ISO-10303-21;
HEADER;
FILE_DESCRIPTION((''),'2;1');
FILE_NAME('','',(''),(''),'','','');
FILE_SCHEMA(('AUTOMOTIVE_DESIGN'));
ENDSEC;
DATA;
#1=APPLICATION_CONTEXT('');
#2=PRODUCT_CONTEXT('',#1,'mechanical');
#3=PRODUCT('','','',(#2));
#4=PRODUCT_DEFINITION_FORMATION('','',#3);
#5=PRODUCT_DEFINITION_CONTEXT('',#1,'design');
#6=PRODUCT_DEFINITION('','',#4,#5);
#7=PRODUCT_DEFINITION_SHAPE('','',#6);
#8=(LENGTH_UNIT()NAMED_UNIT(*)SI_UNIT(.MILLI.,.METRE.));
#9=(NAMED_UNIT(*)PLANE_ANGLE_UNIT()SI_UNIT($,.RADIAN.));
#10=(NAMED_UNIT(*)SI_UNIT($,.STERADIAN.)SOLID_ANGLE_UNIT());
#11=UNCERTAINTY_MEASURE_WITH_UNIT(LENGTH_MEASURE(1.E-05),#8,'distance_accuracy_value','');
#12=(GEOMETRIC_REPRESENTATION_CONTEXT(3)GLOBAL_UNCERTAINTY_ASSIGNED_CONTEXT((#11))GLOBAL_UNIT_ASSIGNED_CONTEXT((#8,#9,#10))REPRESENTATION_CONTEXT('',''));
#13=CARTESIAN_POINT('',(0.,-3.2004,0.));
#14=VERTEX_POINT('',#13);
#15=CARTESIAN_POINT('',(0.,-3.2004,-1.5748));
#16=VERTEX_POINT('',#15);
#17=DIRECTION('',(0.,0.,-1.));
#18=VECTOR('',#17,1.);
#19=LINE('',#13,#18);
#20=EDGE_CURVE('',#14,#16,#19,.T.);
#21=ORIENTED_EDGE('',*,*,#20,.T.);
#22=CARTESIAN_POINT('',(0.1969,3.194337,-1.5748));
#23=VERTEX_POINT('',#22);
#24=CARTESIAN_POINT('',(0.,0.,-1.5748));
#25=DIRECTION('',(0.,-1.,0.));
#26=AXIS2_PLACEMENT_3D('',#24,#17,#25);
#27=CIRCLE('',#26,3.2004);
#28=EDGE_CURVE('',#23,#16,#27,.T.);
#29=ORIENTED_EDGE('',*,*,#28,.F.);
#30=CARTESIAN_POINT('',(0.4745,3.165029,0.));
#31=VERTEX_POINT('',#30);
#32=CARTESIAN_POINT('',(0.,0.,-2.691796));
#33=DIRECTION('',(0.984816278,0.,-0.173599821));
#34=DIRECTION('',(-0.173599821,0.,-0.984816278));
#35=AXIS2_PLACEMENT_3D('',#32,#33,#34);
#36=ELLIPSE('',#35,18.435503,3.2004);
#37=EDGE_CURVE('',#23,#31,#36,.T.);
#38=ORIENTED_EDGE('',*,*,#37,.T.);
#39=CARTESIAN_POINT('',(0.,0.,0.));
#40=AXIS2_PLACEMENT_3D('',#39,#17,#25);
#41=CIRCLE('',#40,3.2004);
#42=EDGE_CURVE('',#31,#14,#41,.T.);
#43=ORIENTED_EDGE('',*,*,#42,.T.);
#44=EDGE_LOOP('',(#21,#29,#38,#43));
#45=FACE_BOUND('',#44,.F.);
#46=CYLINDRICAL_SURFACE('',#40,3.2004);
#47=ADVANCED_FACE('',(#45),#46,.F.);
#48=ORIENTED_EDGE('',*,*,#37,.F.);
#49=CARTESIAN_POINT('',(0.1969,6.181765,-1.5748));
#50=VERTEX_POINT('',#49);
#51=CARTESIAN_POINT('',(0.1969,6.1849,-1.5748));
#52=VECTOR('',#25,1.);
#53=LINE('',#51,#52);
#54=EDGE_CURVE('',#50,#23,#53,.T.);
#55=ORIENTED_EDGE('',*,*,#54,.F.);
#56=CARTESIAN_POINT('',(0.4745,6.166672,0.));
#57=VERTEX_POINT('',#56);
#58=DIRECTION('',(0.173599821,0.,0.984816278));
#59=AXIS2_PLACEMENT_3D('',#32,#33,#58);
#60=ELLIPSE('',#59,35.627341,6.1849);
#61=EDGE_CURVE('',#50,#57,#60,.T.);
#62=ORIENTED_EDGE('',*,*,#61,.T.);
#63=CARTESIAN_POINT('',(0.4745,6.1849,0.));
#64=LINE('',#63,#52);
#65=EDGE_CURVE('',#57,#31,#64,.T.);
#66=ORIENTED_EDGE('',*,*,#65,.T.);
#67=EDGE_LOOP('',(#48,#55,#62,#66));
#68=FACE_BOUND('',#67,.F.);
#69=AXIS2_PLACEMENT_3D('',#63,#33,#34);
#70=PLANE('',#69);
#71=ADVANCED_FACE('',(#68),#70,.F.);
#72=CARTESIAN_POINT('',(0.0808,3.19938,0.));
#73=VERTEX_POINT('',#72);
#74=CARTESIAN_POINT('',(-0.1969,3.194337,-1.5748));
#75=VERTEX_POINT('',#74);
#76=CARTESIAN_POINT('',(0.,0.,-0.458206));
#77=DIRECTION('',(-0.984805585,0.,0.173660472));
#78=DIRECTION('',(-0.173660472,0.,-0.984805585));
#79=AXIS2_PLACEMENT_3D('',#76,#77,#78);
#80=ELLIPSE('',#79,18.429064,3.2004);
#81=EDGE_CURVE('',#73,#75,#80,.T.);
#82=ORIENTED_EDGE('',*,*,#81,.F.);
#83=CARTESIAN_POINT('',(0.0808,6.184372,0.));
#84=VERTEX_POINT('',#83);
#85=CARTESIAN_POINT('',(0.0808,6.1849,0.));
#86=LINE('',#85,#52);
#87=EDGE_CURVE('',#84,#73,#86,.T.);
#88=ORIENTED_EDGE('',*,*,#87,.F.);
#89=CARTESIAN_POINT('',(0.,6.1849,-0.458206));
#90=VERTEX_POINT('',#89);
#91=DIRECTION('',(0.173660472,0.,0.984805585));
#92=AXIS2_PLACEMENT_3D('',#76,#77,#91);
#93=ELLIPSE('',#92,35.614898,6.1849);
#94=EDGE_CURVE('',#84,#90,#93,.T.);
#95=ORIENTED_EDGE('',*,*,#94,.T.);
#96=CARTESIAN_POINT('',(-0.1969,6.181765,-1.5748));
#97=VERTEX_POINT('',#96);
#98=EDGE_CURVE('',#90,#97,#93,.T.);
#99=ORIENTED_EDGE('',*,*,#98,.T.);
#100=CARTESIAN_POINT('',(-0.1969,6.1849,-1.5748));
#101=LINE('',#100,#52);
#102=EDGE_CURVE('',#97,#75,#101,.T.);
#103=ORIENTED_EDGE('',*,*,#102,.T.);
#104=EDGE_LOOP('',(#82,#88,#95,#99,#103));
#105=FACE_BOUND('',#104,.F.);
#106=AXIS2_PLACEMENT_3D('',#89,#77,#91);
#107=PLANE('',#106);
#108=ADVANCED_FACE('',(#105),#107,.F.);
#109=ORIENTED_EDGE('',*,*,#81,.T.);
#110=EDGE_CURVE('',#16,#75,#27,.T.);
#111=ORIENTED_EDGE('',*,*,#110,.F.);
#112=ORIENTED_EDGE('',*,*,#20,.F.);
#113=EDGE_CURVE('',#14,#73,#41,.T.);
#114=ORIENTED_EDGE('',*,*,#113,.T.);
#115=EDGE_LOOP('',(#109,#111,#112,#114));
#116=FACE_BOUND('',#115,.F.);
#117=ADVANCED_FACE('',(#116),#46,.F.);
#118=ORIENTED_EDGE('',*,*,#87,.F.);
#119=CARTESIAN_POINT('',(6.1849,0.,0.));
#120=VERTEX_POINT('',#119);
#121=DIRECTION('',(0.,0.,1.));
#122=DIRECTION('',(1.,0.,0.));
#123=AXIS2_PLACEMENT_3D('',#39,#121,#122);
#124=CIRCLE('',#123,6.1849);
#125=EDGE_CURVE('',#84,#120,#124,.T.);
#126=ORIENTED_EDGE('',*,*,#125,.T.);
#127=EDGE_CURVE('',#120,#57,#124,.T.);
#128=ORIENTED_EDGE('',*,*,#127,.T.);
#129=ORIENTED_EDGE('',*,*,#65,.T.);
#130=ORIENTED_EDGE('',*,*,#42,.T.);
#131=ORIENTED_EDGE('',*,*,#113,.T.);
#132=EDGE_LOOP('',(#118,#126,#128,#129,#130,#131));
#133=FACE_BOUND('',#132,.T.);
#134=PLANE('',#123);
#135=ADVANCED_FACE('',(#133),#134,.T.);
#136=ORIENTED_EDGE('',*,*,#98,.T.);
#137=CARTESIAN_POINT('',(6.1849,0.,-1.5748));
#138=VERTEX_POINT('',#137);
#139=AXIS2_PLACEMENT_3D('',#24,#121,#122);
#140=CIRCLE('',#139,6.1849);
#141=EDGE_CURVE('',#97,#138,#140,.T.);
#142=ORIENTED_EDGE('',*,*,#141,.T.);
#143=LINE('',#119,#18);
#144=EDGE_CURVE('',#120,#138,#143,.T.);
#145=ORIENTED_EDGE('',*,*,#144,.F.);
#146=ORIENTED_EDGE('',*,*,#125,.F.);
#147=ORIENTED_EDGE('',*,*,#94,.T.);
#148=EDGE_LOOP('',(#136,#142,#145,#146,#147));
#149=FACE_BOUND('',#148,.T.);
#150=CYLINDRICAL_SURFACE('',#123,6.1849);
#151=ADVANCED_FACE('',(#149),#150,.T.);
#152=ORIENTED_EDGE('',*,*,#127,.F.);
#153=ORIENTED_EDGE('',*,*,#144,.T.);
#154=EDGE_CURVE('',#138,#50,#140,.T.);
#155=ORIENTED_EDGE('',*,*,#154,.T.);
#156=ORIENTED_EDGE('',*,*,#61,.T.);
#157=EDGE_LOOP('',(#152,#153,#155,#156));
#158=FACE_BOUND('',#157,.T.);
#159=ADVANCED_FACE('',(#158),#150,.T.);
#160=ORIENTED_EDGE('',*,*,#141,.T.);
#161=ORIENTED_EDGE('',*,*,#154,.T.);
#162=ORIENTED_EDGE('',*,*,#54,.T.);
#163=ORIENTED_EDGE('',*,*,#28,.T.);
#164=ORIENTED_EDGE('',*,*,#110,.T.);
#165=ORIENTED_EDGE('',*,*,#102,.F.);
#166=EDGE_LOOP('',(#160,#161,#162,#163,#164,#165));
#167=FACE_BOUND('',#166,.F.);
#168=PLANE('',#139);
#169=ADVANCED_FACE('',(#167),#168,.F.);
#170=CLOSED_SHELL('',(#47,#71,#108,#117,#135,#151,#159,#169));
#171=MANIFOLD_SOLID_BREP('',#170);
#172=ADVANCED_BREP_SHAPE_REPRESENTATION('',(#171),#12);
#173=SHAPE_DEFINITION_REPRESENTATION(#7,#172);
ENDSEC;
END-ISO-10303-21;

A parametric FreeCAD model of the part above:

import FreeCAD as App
import Part
import Sketcher
Q = App.Units.Quantity

doc = App.newDocument("Part")
params = doc.addObject("Spreadsheet::Sheet", "Params")
for row, (alias, value) in enumerate([
    ("sketch1_diameter", "0.487 in"),
    ("pad1_length", "0.062 in"),
    ("sketch2_diameter", "0.252 in"),
    ("hole_diameter", "0.252 in"),
    ("pocket1_length", "0.2435 in"),
], start=1):
    params.set(f"A{row}", alias)
    params.set(f"B{row}", "=" + value)
    params.setAlias(f"B{row}", alias)

body = doc.addObject("PartDesign::Body", "Body")

sketch1 = body.newObject("Sketcher::SketchObject", "Sketch")
sketch1.AttachmentSupport = (doc.getObject("XY_Plane"), [""])
sketch1.MapMode = "FlatFace"
sketch1.addGeometry(Part.Circle(App.Vector(0, 0, 0), App.Vector(0, 0, 1), 6), False)
sketch1.addConstraint([
    Sketcher.Constraint("Coincident", 0, 3, -1, 1),
    Sketcher.Constraint("Diameter", 0, Q("0.487 in")),
])
sketch1.setExpression("Constraints[1]", "Params.sketch1_diameter")
pad1 = body.newObject("PartDesign::Pad", "Pad")
pad1.Profile = sketch1
pad1.setExpression("Length", "Params.pad1_length")
pad1.Reversed = True

sketch2 = body.newObject("Sketcher::SketchObject", "Sketch001")
sketch2.AttachmentSupport = (doc.getObject("XY_Plane"), [""])
sketch2.MapMode = "FlatFace"
sketch2.addGeometry(Part.Circle(App.Vector(0, 0, 0), App.Vector(0, 0, 1), 3.2), False)
sketch2.addConstraint([
    Sketcher.Constraint("Coincident", 0, 3, -1, 1),
    Sketcher.Constraint("Diameter", 0, Q("0.252 in")),
])
sketch2.setExpression("Constraints[1]", "Params.sketch2_diameter")
doc.recompute()
hole = body.newObject("PartDesign::Hole", "Hole")
hole.Profile = sketch2
hole.ThreadType = "None"
hole.setExpression("Diameter", "Params.hole_diameter")
hole.DepthType = "ThroughAll"

sketch3 = body.newObject("Sketcher::SketchObject", "Sketch002")
sketch3.AttachmentSupport = (doc.getObject("XZ_Plane"), [""])
sketch3.MapMode = "FlatFace"
sketch3.AttachmentOffset = App.Placement(App.Vector(0, 0, -0.2435 * 25.4), App.Rotation())
sketch3.addGeometry([
    Part.LineSegment(App.Vector(0.08, 0, 0), App.Vector(0.47, 0, 0)),
    Part.LineSegment(App.Vector(0.47, 0, 0), App.Vector(0.2, -1.57, 0)),
    Part.LineSegment(App.Vector(0.2, -1.57, 0), App.Vector(-0.2, -1.57, 0)),
    Part.LineSegment(App.Vector(-0.2, -1.57, 0), App.Vector(0.08, 0, 0)),
], False)
sketch3.addConstraint([
    Sketcher.Constraint("Coincident", 0, 2, 1, 1),
    Sketcher.Constraint("Coincident", 1, 2, 2, 1),
    Sketcher.Constraint("Coincident", 2, 2, 3, 1),
    Sketcher.Constraint("Coincident", 3, 2, 0, 1),
    Sketcher.Constraint("Horizontal", 0),
    Sketcher.Constraint("Horizontal", 2),
    Sketcher.Constraint("PointOnObject", 0, 2, -1),
    Sketcher.Constraint("Parallel", 1, 3),
    Sketcher.Constraint("Angle", 3, Q("79.9993 deg")),
    Sketcher.Constraint("DistanceX", -1, 1, 1, 2, 0.197),
    Sketcher.Constraint("DistanceX", 2, 2, -1, 1, 0.197),
    Sketcher.Constraint("DistanceY", 1, 2, -1, 1, Q("0.062 in")),
])
pocket1 = body.newObject("PartDesign::Pocket", "Pocket")
pocket1.Profile = sketch3
pocket1.setExpression("Length", "Params.pocket1_length")
pocket1.Reversed = True

doc.recompute()
